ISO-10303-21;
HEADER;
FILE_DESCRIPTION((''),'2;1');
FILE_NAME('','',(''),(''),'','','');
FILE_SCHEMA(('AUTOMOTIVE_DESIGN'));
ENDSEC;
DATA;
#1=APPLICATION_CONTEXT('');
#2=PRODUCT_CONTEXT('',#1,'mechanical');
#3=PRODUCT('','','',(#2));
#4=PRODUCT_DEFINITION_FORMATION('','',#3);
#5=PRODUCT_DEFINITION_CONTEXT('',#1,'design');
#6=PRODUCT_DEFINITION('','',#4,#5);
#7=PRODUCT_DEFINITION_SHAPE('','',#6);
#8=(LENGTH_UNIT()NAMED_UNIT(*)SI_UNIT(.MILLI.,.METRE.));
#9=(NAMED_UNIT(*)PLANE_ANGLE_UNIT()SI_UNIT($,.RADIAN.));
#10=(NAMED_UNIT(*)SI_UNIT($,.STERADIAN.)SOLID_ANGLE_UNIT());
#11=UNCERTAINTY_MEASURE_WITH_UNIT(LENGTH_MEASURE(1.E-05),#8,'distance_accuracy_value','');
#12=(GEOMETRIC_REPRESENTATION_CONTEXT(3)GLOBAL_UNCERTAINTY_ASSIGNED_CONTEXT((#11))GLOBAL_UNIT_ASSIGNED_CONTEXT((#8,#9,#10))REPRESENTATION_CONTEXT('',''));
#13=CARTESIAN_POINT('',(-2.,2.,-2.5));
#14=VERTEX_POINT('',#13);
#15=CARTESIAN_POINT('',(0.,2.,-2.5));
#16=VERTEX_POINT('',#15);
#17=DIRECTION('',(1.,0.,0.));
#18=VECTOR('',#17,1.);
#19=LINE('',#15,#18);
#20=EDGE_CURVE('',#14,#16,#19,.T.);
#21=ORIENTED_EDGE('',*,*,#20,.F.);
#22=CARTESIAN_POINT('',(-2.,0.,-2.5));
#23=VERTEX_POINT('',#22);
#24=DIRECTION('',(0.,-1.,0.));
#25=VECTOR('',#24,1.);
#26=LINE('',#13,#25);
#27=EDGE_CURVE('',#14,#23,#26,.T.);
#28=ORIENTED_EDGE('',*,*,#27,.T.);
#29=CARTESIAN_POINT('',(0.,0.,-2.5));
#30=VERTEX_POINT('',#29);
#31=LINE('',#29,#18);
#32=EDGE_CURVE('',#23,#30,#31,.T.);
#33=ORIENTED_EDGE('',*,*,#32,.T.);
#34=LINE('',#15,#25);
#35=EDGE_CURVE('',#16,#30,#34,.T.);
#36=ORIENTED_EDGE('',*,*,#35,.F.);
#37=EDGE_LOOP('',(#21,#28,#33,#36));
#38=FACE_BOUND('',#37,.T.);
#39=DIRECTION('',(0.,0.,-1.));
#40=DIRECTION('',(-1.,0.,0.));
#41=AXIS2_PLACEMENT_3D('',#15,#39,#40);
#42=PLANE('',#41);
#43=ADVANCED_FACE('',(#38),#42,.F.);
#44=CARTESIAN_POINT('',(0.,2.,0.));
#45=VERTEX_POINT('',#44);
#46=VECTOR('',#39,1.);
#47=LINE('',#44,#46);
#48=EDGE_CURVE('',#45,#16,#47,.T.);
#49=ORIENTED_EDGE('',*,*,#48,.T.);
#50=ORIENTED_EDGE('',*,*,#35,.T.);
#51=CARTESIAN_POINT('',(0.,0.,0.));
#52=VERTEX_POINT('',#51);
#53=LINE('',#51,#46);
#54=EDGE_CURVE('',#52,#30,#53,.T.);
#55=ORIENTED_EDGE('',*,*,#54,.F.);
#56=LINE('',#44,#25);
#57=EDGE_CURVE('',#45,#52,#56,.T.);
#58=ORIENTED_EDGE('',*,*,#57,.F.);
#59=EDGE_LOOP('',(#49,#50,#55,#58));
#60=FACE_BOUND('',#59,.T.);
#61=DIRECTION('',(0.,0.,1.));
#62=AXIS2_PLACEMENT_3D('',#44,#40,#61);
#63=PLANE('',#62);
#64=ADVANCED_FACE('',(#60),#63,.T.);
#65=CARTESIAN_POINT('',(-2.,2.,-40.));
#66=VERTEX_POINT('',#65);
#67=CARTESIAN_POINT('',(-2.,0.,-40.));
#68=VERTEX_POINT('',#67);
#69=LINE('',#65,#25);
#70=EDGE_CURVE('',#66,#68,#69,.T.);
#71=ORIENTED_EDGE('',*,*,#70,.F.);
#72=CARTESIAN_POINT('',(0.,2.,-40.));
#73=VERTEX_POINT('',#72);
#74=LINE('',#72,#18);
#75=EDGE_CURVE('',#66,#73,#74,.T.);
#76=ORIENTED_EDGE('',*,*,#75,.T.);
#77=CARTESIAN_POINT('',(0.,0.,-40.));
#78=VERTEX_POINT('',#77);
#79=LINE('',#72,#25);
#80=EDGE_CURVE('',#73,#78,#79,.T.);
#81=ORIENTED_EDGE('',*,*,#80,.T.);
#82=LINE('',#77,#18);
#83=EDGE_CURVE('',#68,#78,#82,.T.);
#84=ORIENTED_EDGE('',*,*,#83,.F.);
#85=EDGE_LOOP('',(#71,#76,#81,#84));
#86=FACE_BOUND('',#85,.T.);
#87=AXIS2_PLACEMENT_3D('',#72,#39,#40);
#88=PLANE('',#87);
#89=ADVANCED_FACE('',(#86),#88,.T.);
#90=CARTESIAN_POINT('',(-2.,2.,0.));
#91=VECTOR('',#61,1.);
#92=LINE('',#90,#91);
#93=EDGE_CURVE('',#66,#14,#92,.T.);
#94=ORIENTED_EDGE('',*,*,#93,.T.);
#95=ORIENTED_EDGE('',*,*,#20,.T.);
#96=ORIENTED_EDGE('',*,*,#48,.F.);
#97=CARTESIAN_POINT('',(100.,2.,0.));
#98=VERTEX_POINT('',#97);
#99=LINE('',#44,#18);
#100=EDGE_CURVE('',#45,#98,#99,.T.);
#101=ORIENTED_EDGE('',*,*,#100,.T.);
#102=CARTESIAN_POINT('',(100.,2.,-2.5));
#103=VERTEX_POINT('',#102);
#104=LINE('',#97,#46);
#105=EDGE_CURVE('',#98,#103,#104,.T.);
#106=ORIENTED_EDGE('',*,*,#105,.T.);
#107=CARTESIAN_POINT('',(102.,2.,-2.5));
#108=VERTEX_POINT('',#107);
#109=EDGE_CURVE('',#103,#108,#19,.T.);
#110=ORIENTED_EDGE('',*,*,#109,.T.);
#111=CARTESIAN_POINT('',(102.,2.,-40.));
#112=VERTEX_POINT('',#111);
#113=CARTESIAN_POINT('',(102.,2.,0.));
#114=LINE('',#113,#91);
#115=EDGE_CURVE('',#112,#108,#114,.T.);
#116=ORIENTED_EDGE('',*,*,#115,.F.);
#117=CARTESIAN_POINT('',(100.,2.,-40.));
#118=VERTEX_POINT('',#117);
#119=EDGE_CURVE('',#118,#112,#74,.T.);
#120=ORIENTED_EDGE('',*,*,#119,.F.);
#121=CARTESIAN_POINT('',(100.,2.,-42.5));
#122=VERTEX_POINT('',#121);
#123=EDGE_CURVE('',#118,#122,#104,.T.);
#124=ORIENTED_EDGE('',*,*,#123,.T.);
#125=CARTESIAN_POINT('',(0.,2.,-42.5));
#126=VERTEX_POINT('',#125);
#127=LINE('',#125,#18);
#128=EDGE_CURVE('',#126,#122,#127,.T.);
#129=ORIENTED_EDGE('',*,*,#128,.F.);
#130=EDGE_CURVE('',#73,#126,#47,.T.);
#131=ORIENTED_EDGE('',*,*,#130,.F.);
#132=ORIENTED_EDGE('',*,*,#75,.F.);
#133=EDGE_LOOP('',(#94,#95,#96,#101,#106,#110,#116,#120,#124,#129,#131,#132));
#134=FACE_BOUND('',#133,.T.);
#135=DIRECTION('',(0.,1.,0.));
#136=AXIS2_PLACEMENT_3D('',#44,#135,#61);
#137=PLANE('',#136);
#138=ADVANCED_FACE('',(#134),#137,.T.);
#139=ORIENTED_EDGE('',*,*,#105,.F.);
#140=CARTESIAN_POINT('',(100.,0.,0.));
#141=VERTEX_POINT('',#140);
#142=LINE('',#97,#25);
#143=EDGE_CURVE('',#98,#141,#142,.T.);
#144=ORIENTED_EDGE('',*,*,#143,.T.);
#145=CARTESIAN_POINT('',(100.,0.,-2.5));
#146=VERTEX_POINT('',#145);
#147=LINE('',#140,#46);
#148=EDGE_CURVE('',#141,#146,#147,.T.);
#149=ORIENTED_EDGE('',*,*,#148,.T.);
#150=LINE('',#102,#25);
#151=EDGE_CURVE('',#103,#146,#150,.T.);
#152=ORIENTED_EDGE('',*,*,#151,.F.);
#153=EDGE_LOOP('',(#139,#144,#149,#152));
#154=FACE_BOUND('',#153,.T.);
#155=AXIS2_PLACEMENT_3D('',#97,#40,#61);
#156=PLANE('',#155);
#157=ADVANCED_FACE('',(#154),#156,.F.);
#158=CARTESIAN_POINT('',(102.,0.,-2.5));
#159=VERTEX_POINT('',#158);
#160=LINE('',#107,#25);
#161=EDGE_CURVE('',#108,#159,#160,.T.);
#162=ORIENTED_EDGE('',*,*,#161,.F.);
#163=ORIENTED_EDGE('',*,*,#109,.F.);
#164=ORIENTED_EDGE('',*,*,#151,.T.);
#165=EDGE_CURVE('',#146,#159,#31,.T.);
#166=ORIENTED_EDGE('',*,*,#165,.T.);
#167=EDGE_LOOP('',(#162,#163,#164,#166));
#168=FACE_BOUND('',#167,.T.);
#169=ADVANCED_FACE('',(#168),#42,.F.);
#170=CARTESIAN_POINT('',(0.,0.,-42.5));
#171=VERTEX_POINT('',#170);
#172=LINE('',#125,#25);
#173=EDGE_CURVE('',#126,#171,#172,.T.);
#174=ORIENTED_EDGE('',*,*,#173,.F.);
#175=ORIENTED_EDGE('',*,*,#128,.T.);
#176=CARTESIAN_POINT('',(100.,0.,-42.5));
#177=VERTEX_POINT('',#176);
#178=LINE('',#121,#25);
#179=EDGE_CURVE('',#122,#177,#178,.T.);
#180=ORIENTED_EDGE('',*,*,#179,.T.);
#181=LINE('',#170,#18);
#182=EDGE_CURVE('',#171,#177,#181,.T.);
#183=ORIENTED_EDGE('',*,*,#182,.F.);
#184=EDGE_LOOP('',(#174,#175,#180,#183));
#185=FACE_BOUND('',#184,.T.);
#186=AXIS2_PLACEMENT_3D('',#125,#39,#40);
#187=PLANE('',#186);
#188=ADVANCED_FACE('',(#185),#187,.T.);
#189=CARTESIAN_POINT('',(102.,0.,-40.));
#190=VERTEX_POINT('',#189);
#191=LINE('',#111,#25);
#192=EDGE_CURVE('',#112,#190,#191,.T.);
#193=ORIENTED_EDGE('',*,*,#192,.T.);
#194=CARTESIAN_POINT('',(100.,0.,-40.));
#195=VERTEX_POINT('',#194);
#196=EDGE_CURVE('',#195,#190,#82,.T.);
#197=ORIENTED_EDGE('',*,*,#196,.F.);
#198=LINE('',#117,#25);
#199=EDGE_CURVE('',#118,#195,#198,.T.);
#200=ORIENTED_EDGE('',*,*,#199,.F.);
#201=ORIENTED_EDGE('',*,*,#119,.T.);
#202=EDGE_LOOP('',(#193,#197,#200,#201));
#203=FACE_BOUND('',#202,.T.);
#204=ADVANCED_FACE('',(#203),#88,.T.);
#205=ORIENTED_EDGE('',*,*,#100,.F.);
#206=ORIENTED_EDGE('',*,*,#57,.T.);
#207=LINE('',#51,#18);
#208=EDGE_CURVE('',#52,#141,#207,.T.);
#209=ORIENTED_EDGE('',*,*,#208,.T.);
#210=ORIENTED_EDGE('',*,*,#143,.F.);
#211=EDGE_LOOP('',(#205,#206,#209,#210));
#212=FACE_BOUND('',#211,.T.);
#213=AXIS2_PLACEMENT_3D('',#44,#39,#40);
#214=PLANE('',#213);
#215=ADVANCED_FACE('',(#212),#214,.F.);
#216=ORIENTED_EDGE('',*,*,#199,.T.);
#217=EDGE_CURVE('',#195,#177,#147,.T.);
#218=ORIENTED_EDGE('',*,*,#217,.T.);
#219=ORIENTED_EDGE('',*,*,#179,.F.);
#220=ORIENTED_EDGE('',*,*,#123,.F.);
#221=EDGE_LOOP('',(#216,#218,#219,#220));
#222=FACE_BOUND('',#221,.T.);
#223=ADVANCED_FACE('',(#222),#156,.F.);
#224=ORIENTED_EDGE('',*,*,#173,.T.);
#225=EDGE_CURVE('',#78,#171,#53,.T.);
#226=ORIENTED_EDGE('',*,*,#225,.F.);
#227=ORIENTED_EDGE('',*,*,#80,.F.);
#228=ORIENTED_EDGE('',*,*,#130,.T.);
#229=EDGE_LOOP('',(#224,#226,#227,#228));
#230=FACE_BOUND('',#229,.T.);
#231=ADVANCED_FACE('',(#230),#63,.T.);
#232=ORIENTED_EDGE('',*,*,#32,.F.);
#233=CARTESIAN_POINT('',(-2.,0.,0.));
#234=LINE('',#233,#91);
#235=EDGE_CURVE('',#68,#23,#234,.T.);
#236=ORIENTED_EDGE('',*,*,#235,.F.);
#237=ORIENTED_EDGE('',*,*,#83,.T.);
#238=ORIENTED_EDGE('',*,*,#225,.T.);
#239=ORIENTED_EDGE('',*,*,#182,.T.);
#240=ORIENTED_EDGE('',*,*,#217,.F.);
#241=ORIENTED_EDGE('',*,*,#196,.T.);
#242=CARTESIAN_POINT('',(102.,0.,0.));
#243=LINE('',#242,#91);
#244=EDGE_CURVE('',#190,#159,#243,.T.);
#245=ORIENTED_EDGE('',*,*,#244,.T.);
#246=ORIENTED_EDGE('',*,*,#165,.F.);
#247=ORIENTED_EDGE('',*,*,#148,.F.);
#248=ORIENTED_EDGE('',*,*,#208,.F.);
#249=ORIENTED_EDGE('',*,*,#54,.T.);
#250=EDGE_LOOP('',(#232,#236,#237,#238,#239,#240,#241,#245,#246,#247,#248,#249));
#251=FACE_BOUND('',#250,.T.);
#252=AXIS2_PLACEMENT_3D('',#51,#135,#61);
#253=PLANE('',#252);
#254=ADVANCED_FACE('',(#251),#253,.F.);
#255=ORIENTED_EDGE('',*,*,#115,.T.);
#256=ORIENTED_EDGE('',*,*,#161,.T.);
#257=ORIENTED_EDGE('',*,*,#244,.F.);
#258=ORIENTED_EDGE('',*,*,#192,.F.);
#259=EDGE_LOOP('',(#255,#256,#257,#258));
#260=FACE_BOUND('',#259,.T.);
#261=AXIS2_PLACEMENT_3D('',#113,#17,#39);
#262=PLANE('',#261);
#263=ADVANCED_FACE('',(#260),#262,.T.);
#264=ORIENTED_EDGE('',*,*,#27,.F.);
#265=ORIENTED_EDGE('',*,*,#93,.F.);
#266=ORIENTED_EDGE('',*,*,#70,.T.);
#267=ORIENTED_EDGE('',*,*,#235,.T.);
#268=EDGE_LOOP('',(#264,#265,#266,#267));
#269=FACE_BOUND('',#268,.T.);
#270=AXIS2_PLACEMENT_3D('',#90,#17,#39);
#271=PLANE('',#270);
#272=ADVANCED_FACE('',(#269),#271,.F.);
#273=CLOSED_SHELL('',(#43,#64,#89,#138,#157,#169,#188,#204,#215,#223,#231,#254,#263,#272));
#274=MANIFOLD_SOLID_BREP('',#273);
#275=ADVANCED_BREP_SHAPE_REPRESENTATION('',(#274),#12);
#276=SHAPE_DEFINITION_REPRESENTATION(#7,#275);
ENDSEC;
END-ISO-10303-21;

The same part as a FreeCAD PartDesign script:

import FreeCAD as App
import Part
import Sketcher

V = App.Vector
Q = App.Units.Quantity

doc = App.newDocument("Part")
body = doc.addObject("PartDesign::Body", "Body")

# Sketch on XZ plane
sketch1 = body.newObject("Sketcher::SketchObject", "Sketch")
sketch1.AttachmentSupport = (doc.getObject("XZ_Plane"), [""])
sketch1.MapMode = "FlatFace"
sketch1.addGeometry([
    Part.LineSegment(V(-2, -40, 0), V(-2, -2.5, 0)),  # 0
    Part.LineSegment(V(-2, -2.5, 0), V(0, -2.5, 0)),  # 1
    Part.LineSegment(V(0, -2.5, 0), V(0, 0, 0)),  # 2
    Part.LineSegment(V(0, 0, 0), V(100, 0, 0)),  # 3
    Part.LineSegment(V(100, 0, 0), V(100, -2.5, 0)),  # 4
    Part.LineSegment(V(100, -2.5, 0), V(102, -2.5, 0)),  # 5
    Part.LineSegment(V(102, -2.5, 0), V(102, -40, 0)),  # 6
    Part.LineSegment(V(102, -40, 0), V(100, -40, 0)),  # 7
    Part.LineSegment(V(100, -40, 0), V(100, -42.5, 0)),  # 8
    Part.LineSegment(V(100, -42.5, 0), V(0, -42.5, 0)),  # 9
    Part.LineSegment(V(0, -42.5, 0), V(0, -40, 0)),  # 10
    Part.LineSegment(V(0, -40, 0), V(-2, -40, 0)),  # 11
], False)
sketch1.addConstraint([
    Sketcher.Constraint("Coincident", 0, 2, 1, 1),
    Sketcher.Constraint("Coincident", 1, 2, 2, 1),
    Sketcher.Constraint("Coincident", 2, 2, 3, 1),
    Sketcher.Constraint("Coincident", 3, 2, 4, 1),
    Sketcher.Constraint("Coincident", 4, 2, 5, 1),
    Sketcher.Constraint("Coincident", 5, 2, 6, 1),
    Sketcher.Constraint("Coincident", 6, 2, 7, 1),
    Sketcher.Constraint("Coincident", 7, 2, 8, 1),
    Sketcher.Constraint("Coincident", 8, 2, 9, 1),
    Sketcher.Constraint("Coincident", 9, 2, 10, 1),
    Sketcher.Constraint("Coincident", 10, 2, 11, 1),
    Sketcher.Constraint("Coincident", 11, 2, 0, 1),
    Sketcher.Constraint("Vertical", 0),
    Sketcher.Constraint("Horizontal", 1),
    Sketcher.Constraint("Vertical", 2),
    Sketcher.Constraint("Horizontal", 3),
    Sketcher.Constraint("Vertical", 4),
    Sketcher.Constraint("Horizontal", 5),
    Sketcher.Constraint("Vertical", 6),
    Sketcher.Constraint("Horizontal", 7),
    Sketcher.Constraint("Vertical", 8),
    Sketcher.Constraint("Horizontal", 9),
    Sketcher.Constraint("Vertical", 10),
    Sketcher.Constraint("Horizontal", 11),
    Sketcher.Constraint("Coincident", 2, 2, -1, 1),
    Sketcher.Constraint("PointOnObject", 9, 2, -2),
    Sketcher.Constraint("Horizontal", 1, 2, 4, 2),
    Sketcher.Constraint("Horizontal", 7, 2, 10, 2),
    Sketcher.Constraint("Vertical", 4, 2, 7, 2),
    Sketcher.Constraint("Equal", 1, 5),
    Sketcher.Constraint("Equal", 4, 8),
    Sketcher.Constraint("DistanceX", 1, 1, 1, 2, Q("2 mm")),
    Sketcher.Constraint("DistanceX", 3, 1, 3, 2, Q("100 mm")),
    Sketcher.Constraint("DistanceY", 0, 1, 0, 2, Q("37.5 mm")),
    Sketcher.Constraint("DistanceY", 2, 1, 2, 2, Q("2.5 mm")),
])
pad1 = body.newObject("PartDesign::Pad", "Pad")
pad1.Profile = sketch1
pad1.Length = 2
pad1.Reversed = True

doc.recompute()
